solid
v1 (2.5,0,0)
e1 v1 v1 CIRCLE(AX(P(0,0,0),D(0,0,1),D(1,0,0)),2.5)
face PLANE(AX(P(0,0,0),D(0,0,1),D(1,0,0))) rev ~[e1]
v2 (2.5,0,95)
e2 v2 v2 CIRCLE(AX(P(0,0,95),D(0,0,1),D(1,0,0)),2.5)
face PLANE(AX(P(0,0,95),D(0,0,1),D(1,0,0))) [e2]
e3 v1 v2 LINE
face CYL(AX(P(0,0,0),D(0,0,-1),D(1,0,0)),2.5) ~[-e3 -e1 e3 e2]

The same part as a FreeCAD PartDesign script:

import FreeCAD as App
import Part
import Sketcher
from FreeCAD import Vector
Q = App.Units.Quantity

doc = App.newDocument("Part")
body = doc.addObject("PartDesign::Body", "Body")

# Sketch on XY plane
sketch1 = doc.addObject("Sketcher::SketchObject", "Sketch")
body.addObject(sketch1)
sketch1.AttachmentSupport = (doc.XY_Plane, [""])
sketch1.MapMode = "FlatFace"
sketch1.addGeometry(Part.Circle(Vector(0, 0, 0), Vector(0, 0, 1), 2.5), False)
sketch1.addConstraint(Sketcher.Constraint("Coincident", 0, 3, -1, 1))
sketch1.addConstraint(Sketcher.Constraint("Diameter", 0, Q("5 mm")))
pad1 = doc.addObject("PartDesign::Pad", "Pad")
body.addObject(pad1)
pad1.Profile = sketch1
pad1.Length = 95

doc.recompute()
